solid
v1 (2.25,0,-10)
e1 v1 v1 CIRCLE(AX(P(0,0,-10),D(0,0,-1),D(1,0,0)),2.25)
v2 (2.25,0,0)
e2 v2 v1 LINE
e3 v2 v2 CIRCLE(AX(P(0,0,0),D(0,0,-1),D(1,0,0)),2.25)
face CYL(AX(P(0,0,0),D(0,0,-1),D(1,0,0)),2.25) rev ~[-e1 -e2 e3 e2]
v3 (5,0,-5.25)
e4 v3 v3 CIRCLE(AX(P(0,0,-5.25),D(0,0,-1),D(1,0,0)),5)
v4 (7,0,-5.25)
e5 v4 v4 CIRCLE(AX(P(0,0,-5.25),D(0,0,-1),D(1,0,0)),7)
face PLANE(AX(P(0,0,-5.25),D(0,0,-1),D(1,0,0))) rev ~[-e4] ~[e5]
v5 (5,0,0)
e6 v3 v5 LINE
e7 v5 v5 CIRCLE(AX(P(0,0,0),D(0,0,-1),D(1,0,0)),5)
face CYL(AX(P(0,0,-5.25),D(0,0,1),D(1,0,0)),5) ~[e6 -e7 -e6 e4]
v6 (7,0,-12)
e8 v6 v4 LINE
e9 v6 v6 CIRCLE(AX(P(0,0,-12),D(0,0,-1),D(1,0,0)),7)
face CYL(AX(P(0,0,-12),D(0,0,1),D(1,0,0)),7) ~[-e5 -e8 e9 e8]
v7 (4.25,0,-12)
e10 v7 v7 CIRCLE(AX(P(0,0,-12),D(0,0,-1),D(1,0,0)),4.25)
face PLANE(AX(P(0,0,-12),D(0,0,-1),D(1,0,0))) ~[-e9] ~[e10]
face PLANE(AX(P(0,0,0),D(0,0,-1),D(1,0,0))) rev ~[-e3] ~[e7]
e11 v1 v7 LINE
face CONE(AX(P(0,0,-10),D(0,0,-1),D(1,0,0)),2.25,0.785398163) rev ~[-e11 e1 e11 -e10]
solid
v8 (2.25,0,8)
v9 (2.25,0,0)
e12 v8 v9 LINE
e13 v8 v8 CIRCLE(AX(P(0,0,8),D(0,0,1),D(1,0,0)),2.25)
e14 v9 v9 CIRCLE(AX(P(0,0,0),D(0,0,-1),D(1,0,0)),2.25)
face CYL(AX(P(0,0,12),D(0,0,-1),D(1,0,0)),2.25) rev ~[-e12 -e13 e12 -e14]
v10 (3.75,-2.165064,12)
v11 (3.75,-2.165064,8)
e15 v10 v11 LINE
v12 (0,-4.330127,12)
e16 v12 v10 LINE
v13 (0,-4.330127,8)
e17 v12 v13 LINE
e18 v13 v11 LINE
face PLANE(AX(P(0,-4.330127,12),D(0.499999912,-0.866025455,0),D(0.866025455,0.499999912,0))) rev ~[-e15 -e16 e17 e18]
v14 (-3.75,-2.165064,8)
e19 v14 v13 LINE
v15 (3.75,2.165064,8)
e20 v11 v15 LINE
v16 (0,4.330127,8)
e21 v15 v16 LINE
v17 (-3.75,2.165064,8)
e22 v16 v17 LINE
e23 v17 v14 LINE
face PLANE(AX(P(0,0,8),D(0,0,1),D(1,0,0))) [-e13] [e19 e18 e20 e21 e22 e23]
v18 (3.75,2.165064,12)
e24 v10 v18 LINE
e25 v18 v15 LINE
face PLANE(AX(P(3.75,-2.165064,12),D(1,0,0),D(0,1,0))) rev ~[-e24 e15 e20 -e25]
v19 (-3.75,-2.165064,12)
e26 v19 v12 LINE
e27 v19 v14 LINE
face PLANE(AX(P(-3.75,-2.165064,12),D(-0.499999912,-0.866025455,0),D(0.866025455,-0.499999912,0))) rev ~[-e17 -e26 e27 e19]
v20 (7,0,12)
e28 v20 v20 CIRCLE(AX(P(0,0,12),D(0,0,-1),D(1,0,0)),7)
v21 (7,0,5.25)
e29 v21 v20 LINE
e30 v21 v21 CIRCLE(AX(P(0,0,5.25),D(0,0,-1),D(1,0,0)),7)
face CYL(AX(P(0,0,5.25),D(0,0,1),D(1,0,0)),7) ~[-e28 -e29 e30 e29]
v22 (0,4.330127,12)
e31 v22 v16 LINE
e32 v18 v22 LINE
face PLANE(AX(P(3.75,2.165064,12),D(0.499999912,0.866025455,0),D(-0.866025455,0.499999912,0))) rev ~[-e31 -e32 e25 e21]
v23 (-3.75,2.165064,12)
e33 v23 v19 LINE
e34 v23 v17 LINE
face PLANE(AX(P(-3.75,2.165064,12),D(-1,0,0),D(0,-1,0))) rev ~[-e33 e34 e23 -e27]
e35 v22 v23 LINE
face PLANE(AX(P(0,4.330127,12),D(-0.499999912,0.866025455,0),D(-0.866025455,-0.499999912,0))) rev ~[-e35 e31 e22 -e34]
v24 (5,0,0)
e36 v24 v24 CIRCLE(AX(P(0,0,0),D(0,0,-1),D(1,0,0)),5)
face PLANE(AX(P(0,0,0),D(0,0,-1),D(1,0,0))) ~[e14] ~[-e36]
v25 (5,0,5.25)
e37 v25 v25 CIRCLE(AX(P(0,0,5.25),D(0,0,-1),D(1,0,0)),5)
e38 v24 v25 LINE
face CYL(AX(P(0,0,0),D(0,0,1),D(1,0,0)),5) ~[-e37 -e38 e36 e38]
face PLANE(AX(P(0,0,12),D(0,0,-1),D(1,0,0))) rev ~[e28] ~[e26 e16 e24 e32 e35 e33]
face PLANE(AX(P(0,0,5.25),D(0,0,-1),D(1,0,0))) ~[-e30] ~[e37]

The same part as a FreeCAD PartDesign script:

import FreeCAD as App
import Part
import Sketcher

V = App.Vector
Q = App.Units.Quantity

doc = App.newDocument("Part")
params = doc.addObject("Spreadsheet::Sheet", "Params")
for row, (alias, value) in enumerate([
    ("sketch1_width", "2 mm"),
    ("sketch1_height", "10 mm"),
    ("sketch1_width2", "2.75 mm"),
    ("sketch1_height2", "6.75 mm"),
    ("revolution_angle", "360 deg"),
    ("sketch2_width", "2 mm"),
    ("sketch2_height", "12 mm"),
    ("sketch2_width2", "4.75 mm"),
    ("sketch2_height2", "5.25 mm"),
    ("revolution2_angle", "360 deg"),
    ("sketch3_diameter", "4.5 mm"),
    ("pocket1_length", "4 mm"),
], start=1):
    params.set(f"A{row}", alias)
    params.set(f"B{row}", "=" + value)
    params.setAlias(f"B{row}", alias)

body = doc.addObject("PartDesign::Body", "Body")

# Sketch on XZ plane
sketch1 = body.newObject("Sketcher::SketchObject", "Sketch")
sketch1.AttachmentSupport = (doc.getObject("XZ_Plane"), [""])
sketch1.MapMode = "FlatFace"
sketch1.addGeometry(Part.LineSegment(V(5, 0, 0), V(2.2, 0, 0)), False)
sketch1.addGeometry(Part.LineSegment(V(2.2, 0, 0), V(2.2, -10, 0)), False)
sketch1.addGeometry(Part.LineSegment(V(2.2, -10, 0), V(4.2, -12, 0)), False)
sketch1.addGeometry(Part.LineSegment(V(4.2, -12, 0), V(7, -12, 0)), False)
sketch1.addGeometry(Part.LineSegment(V(7, -12, 0), V(7, -5.2, 0)), False)
sketch1.addGeometry(Part.LineSegment(V(7, -5.2, 0), V(5, -5.2, 0)), False)
sketch1.addGeometry(Part.LineSegment(V(5, -5.2, 0), V(5, 0, 0)), False)
sketch1.addConstraint(Sketcher.Constraint("Coincident", 0, 2, 1, 1))
sketch1.addConstraint(Sketcher.Constraint("Coincident", 1, 2, 2, 1))
sketch1.addConstraint(Sketcher.Constraint("Coincident", 2, 2, 3, 1))
sketch1.addConstraint(Sketcher.Constraint("Coincident", 3, 2, 4, 1))
sketch1.addConstraint(Sketcher.Constraint("Coincident", 4, 2, 5, 1))
sketch1.addConstraint(Sketcher.Constraint("Coincident", 5, 2, 6, 1))
sketch1.addConstraint(Sketcher.Constraint("Coincident", 6, 2, 0, 1))
sketch1.addConstraint(Sketcher.Constraint("Horizontal", 0))
sketch1.addConstraint(Sketcher.Constraint("Vertical", 1))
sketch1.addConstraint(Sketcher.Constraint("Horizontal", 3))
sketch1.addConstraint(Sketcher.Constraint("Vertical", 4))
sketch1.addConstraint(Sketcher.Constraint("Horizontal", 5))
sketch1.addConstraint(Sketcher.Constraint("Vertical", 6))
sketch1.addConstraint(Sketcher.Constraint("PointOnObject", 0, 2, -1))
sketch1.addConstraint(Sketcher.Constraint("Equal", 0, 3))
sketch1.addConstraint(Sketcher.Constraint("DistanceX", 5, 2, 5, 1, 2.0))
sketch1.addConstraint(Sketcher.Constraint("DistanceY", 1, 2, 1, 1, 10.0))
sketch1.addConstraint(Sketcher.Constraint("Angle", 2, Q("-45 deg")))
sketch1.addConstraint(Sketcher.Constraint("DistanceX", -1, 1, 3, 2, 7.0))
sketch1.addConstraint(Sketcher.Constraint("DistanceX", 0, 2, 0, 1, 2.75))
sketch1.addConstraint(Sketcher.Constraint("DistanceY", 4, 1, 4, 2, 6.75))
sketch1.setExpression("Constraints[15]", "Params.sketch1_width")
sketch1.setExpression("Constraints[16]", "Params.sketch1_height")
sketch1.setExpression("Constraints[19]", "Params.sketch1_width2")
sketch1.setExpression("Constraints[20]", "Params.sketch1_height2")
revolution = body.newObject("PartDesign::Revolution", "Revolution")
revolution.Profile = sketch1
revolution.ReferenceAxis = (sketch1, ["V_Axis"])
revolution.setExpression("Angle", "Params.revolution_angle")
body2 = doc.addObject("PartDesign::Body", "Body001")

# Sketch on XZ plane
sketch2 = body2.newObject("Sketcher::SketchObject", "Sketch001")
sketch2.AttachmentSupport = (doc.getObject("XZ_Plane001"), [""])
sketch2.MapMode = "FlatFace"
sketch2.addGeometry(Part.LineSegment(V(7, 12, 0), V(2.2, 12, 0)), False)
sketch2.addGeometry(Part.LineSegment(V(2.2, 12, 0), V(2.2, 0, 0)), False)
sketch2.addGeometry(Part.LineSegment(V(2.2, 0, 0), V(5, 0, 0)), False)
sketch2.addGeometry(Part.LineSegment(V(5, 0, 0), V(5, 5.2, 0)), False)
sketch2.addGeometry(Part.LineSegment(V(5, 5.2, 0), V(7, 5.2, 0)), False)
sketch2.addGeometry(Part.LineSegment(V(7, 5.2, 0), V(7, 12, 0)), False)
sketch2.addConstraint(Sketcher.Constraint("Coincident", 0, 2, 1, 1))
sketch2.addConstraint(Sketcher.Constraint("Coincident", 1, 2, 2, 1))
sketch2.addConstraint(Sketcher.Constraint("Coincident", 2, 2, 3, 1))
sketch2.addConstraint(Sketcher.Constraint("Coincident", 3, 2, 4, 1))
sketch2.addConstraint(Sketcher.Constraint("Coincident", 4, 2, 5, 1))
sketch2.addConstraint(Sketcher.Constraint("Coincident", 5, 2, 0, 1))
sketch2.addConstraint(Sketcher.Constraint("Horizontal", 0))
sketch2.addConstraint(Sketcher.Constraint("Vertical", 1))
sketch2.addConstraint(Sketcher.Constraint("Horizontal", 2))
sketch2.addConstraint(Sketcher.Constraint("Vertical", 3))
sketch2.addConstraint(Sketcher.Constraint("Horizontal", 4))
sketch2.addConstraint(Sketcher.Constraint("Vertical", 5))
sketch2.addConstraint(Sketcher.Constraint("PointOnObject", 1, 2, -1))
sketch2.addConstraint(Sketcher.Constraint("DistanceX", 4, 1, 4, 2, 2.0))
sketch2.addConstraint(Sketcher.Constraint("DistanceY", 1, 2, 1, 1, 12.0))
sketch2.addConstraint(Sketcher.Constraint("DistanceX", -1, 1, 2, 2, 5.0))
sketch2.addConstraint(Sketcher.Constraint("DistanceX", 0, 2, 0, 1, 4.75))
sketch2.addConstraint(Sketcher.Constraint("DistanceY", 3, 1, 3, 2, 5.25))
sketch2.setExpression("Constraints[13]", "Params.sketch2_width")
sketch2.setExpression("Constraints[14]", "Params.sketch2_height")
sketch2.setExpression("Constraints[16]", "Params.sketch2_width2")
sketch2.setExpression("Constraints[17]", "Params.sketch2_height2")
revolution2 = body2.newObject("PartDesign::Revolution", "Revolution001")
revolution2.Profile = sketch2
revolution2.ReferenceAxis = (sketch2, ["V_Axis"])
revolution2.setExpression("Angle", "Params.revolution2_angle")

# Sketch on XY plane
sketch3 = body2.newObject("Sketcher::SketchObject", "Sketch002")
sketch3.AttachmentSupport = (doc.getObject("XY_Plane001"), [""])
sketch3.MapMode = "FlatFace"
sketch3.AttachmentOffset = App.Placement(V(0, 0, 12), App.Rotation())
sketch3.addGeometry(Part.LineSegment(V(-3.8, 2.2, 0), V(-3.8, -2.2, 0)), False)
sketch3.addGeometry(Part.LineSegment(V(-3.8, -2.2, 0), V(0, -4.3, 0)), False)
sketch3.addGeometry(Part.LineSegment(V(0, -4.3, 0), V(3.8, -2.2, 0)), False)
sketch3.addGeometry(Part.LineSegment(V(3.8, -2.2, 0), V(3.8, 2.2, 0)), False)
sketch3.addGeometry(Part.LineSegment(V(3.8, 2.2, 0), V(0, 4.3, 0)), False)
sketch3.addGeometry(Part.LineSegment(V(0, 4.3, 0), V(-3.8, 2.2, 0)), False)
sketch3.addGeometry(Part.Circle(V(0, 0, 0), V(0, 0, 1), 2.2), False)
sketch3.addConstraint(Sketcher.Constraint("Coincident", 0, 2, 1, 1))
sketch3.addConstraint(Sketcher.Constraint("Coincident", 1, 2, 2, 1))
sketch3.addConstraint(Sketcher.Constraint("Coincident", 2, 2, 3, 1))
sketch3.addConstraint(Sketcher.Constraint("Coincident", 3, 2, 4, 1))
sketch3.addConstraint(Sketcher.Constraint("Coincident", 4, 2, 5, 1))
sketch3.addConstraint(Sketcher.Constraint("Coincident", 5, 2, 0, 1))
sketch3.addConstraint(Sketcher.Constraint("Vertical", 0))
sketch3.addConstraint(Sketcher.Constraint("Vertical", 3))
sketch3.addConstraint(Sketcher.Constraint("Coincident", 6, 3, -1, 1))
sketch3.addConstraint(Sketcher.Constraint("Symmetric", 0, 2, 3, 2, -1, 1))
sketch3.addConstraint(Sketcher.Constraint("Symmetric", 1, 2, 4, 2, -1, 1))
sketch3.addConstraint(Sketcher.Constraint("PointOnObject", 1, 2, -2))
sketch3.addConstraint(Sketcher.Constraint("Parallel", 2, 5))
sketch3.addConstraint(Sketcher.Constraint("Horizontal", 0, 2, 2, 2))
sketch3.addConstraint(Sketcher.Constraint("Diameter", 6, 4.5))
sketch3.addConstraint(Sketcher.Constraint("Angle", 1, Q("-29.999994 deg")))
sketch3.addConstraint(Sketcher.Constraint("DistanceX", 0, 2, 2, 2, 7.5))
sketch3.addConstraint(Sketcher.Constraint("DistanceY", 0, 2, 0, 1, 4.330128))
sketch3.setExpression("Constraints[14]", "Params.sketch3_diameter")
pocket1 = body2.newObject("PartDesign::Pocket", "Pocket")
pocket1.Profile = sketch3
pocket1.setExpression("Length", "Params.pocket1_length")

doc.recompute()
